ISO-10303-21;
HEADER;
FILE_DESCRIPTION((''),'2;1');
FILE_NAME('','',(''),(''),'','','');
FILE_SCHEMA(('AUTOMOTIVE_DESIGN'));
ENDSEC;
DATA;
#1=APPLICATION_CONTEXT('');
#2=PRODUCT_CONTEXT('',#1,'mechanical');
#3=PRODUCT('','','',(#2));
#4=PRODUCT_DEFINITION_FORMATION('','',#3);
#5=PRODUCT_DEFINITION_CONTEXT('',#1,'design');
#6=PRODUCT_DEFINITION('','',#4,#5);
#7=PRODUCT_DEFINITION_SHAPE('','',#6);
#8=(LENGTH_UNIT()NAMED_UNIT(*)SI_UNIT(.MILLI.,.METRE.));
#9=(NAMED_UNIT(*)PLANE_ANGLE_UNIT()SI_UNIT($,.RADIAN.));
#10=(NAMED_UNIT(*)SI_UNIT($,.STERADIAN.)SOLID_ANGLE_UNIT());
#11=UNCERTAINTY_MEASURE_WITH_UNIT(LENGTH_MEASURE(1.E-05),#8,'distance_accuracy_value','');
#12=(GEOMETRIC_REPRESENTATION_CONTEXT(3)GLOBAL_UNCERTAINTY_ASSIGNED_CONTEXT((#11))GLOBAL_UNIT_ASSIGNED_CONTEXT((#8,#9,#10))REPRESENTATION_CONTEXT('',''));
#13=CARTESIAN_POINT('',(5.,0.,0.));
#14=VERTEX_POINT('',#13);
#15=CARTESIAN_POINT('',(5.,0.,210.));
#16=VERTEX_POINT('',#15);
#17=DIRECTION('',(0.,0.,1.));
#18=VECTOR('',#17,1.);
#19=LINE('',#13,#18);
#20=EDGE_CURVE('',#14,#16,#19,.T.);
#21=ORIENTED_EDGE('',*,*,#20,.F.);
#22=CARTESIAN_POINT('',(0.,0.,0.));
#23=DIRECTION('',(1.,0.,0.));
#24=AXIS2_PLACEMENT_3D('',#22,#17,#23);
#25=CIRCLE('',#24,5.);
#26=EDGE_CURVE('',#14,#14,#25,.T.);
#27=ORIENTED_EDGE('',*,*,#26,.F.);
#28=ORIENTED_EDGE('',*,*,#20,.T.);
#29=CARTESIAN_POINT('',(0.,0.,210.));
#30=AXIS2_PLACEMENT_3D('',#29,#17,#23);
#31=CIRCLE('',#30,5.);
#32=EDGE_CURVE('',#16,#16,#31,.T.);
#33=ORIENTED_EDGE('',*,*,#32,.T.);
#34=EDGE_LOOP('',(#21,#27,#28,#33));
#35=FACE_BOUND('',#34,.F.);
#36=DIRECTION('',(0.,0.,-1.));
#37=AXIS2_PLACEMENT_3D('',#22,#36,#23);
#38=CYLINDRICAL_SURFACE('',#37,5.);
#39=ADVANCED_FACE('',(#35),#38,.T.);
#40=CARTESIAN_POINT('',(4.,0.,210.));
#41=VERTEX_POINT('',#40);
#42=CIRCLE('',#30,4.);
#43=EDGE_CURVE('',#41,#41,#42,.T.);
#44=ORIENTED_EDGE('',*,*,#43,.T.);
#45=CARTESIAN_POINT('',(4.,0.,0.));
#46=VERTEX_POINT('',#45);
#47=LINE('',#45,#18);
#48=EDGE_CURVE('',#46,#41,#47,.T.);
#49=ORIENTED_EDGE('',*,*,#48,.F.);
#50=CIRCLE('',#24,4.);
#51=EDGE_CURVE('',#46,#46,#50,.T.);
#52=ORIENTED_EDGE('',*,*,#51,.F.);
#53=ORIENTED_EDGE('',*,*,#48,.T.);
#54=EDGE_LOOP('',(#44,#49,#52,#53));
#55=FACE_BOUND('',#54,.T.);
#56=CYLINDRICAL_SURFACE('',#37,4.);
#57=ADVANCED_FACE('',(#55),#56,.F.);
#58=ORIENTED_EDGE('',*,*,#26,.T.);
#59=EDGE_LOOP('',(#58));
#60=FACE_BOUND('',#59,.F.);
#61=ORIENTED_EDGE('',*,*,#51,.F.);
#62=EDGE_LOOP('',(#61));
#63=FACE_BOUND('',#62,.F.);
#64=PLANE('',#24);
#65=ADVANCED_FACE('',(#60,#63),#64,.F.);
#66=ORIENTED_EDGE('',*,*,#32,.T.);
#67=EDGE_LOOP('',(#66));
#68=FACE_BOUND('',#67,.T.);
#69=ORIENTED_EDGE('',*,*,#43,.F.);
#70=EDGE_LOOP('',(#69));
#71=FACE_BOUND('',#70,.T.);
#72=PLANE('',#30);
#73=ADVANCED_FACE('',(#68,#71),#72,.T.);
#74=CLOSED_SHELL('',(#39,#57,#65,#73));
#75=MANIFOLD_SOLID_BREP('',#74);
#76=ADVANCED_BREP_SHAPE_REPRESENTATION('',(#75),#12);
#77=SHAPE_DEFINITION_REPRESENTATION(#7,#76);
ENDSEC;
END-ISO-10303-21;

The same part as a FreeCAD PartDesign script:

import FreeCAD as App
import Part
import Sketcher
Q = App.Units.Quantity

doc = App.newDocument("Part")
body = doc.addObject("PartDesign::Body", "Body")

# Sketch on XY plane
sketch1 = body.newObject("Sketcher::SketchObject", "Sketch")
sketch1.AttachmentSupport = (doc.getObject("XY_Plane"), [""])
sketch1.MapMode = "FlatFace"
sketch1.addGeometry([
    Part.Circle(App.Vector(0, 0, 0), App.Vector(0, 0, 1), 5),
    Part.Circle(App.Vector(0, 0, 0), App.Vector(0, 0, 1), 4),
], False)
sketch1.addConstraint([
    Sketcher.Constraint("Coincident", 0, 3, -1, 1),
    Sketcher.Constraint("Coincident", 1, 3, -1, 1),
    Sketcher.Constraint("Diameter", 0, Q("10 mm")),
    Sketcher.Constraint("Diameter", 1, Q("8 mm")),
])
pad1 = body.newObject("PartDesign::Pad", "Pad")
pad1.Profile = sketch1
pad1.Length = 210

doc.recompute()
